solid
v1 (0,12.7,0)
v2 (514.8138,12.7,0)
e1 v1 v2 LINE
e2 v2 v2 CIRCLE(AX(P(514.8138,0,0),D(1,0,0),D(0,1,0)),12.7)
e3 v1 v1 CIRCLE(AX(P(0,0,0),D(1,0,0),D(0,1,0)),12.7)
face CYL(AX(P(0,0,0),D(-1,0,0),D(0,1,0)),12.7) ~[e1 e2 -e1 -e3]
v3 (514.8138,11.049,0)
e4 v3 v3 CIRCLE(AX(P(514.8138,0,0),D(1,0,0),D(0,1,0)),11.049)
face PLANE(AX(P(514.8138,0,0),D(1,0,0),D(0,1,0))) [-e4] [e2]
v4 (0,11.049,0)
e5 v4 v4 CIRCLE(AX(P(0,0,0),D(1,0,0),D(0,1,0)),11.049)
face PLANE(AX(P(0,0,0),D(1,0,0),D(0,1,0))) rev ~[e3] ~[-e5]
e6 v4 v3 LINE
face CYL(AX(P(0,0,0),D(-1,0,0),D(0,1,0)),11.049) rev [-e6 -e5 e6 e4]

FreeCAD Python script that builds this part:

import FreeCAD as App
import Part
import Sketcher

V = App.Vector
Q = App.Units.Quantity

doc = App.newDocument("Part")
body = doc.addObject("PartDesign::Body", "Body")

# Sketch on YZ plane
sketch1 = body.newObject("Sketcher::SketchObject", "Sketch")
sketch1.AttachmentSupport = (doc.getObject("YZ_Plane"), [""])
sketch1.MapMode = "FlatFace"
sketch1.addGeometry(Part.Circle(V(0, 0, 0), V(0, 0, 1), 13), False)
sketch1.addGeometry(Part.Circle(V(0, 0, 0), V(0, 0, 1), 11), False)
sketch1.addConstraint(Sketcher.Constraint("Coincident", 0, 3, -1, 1))
sketch1.addConstraint(Sketcher.Constraint("Coincident", 1, 3, -1, 1))
sketch1.addConstraint(Sketcher.Constraint("Diameter", 0, Q("1 in")))
sketch1.addConstraint(Sketcher.Constraint("Diameter", 1, Q("0.87 in")))
pad1 = body.newObject("PartDesign::Pad", "Pad")
pad1.Profile = sketch1
pad1.Length = 514.8138

doc.recompute()
